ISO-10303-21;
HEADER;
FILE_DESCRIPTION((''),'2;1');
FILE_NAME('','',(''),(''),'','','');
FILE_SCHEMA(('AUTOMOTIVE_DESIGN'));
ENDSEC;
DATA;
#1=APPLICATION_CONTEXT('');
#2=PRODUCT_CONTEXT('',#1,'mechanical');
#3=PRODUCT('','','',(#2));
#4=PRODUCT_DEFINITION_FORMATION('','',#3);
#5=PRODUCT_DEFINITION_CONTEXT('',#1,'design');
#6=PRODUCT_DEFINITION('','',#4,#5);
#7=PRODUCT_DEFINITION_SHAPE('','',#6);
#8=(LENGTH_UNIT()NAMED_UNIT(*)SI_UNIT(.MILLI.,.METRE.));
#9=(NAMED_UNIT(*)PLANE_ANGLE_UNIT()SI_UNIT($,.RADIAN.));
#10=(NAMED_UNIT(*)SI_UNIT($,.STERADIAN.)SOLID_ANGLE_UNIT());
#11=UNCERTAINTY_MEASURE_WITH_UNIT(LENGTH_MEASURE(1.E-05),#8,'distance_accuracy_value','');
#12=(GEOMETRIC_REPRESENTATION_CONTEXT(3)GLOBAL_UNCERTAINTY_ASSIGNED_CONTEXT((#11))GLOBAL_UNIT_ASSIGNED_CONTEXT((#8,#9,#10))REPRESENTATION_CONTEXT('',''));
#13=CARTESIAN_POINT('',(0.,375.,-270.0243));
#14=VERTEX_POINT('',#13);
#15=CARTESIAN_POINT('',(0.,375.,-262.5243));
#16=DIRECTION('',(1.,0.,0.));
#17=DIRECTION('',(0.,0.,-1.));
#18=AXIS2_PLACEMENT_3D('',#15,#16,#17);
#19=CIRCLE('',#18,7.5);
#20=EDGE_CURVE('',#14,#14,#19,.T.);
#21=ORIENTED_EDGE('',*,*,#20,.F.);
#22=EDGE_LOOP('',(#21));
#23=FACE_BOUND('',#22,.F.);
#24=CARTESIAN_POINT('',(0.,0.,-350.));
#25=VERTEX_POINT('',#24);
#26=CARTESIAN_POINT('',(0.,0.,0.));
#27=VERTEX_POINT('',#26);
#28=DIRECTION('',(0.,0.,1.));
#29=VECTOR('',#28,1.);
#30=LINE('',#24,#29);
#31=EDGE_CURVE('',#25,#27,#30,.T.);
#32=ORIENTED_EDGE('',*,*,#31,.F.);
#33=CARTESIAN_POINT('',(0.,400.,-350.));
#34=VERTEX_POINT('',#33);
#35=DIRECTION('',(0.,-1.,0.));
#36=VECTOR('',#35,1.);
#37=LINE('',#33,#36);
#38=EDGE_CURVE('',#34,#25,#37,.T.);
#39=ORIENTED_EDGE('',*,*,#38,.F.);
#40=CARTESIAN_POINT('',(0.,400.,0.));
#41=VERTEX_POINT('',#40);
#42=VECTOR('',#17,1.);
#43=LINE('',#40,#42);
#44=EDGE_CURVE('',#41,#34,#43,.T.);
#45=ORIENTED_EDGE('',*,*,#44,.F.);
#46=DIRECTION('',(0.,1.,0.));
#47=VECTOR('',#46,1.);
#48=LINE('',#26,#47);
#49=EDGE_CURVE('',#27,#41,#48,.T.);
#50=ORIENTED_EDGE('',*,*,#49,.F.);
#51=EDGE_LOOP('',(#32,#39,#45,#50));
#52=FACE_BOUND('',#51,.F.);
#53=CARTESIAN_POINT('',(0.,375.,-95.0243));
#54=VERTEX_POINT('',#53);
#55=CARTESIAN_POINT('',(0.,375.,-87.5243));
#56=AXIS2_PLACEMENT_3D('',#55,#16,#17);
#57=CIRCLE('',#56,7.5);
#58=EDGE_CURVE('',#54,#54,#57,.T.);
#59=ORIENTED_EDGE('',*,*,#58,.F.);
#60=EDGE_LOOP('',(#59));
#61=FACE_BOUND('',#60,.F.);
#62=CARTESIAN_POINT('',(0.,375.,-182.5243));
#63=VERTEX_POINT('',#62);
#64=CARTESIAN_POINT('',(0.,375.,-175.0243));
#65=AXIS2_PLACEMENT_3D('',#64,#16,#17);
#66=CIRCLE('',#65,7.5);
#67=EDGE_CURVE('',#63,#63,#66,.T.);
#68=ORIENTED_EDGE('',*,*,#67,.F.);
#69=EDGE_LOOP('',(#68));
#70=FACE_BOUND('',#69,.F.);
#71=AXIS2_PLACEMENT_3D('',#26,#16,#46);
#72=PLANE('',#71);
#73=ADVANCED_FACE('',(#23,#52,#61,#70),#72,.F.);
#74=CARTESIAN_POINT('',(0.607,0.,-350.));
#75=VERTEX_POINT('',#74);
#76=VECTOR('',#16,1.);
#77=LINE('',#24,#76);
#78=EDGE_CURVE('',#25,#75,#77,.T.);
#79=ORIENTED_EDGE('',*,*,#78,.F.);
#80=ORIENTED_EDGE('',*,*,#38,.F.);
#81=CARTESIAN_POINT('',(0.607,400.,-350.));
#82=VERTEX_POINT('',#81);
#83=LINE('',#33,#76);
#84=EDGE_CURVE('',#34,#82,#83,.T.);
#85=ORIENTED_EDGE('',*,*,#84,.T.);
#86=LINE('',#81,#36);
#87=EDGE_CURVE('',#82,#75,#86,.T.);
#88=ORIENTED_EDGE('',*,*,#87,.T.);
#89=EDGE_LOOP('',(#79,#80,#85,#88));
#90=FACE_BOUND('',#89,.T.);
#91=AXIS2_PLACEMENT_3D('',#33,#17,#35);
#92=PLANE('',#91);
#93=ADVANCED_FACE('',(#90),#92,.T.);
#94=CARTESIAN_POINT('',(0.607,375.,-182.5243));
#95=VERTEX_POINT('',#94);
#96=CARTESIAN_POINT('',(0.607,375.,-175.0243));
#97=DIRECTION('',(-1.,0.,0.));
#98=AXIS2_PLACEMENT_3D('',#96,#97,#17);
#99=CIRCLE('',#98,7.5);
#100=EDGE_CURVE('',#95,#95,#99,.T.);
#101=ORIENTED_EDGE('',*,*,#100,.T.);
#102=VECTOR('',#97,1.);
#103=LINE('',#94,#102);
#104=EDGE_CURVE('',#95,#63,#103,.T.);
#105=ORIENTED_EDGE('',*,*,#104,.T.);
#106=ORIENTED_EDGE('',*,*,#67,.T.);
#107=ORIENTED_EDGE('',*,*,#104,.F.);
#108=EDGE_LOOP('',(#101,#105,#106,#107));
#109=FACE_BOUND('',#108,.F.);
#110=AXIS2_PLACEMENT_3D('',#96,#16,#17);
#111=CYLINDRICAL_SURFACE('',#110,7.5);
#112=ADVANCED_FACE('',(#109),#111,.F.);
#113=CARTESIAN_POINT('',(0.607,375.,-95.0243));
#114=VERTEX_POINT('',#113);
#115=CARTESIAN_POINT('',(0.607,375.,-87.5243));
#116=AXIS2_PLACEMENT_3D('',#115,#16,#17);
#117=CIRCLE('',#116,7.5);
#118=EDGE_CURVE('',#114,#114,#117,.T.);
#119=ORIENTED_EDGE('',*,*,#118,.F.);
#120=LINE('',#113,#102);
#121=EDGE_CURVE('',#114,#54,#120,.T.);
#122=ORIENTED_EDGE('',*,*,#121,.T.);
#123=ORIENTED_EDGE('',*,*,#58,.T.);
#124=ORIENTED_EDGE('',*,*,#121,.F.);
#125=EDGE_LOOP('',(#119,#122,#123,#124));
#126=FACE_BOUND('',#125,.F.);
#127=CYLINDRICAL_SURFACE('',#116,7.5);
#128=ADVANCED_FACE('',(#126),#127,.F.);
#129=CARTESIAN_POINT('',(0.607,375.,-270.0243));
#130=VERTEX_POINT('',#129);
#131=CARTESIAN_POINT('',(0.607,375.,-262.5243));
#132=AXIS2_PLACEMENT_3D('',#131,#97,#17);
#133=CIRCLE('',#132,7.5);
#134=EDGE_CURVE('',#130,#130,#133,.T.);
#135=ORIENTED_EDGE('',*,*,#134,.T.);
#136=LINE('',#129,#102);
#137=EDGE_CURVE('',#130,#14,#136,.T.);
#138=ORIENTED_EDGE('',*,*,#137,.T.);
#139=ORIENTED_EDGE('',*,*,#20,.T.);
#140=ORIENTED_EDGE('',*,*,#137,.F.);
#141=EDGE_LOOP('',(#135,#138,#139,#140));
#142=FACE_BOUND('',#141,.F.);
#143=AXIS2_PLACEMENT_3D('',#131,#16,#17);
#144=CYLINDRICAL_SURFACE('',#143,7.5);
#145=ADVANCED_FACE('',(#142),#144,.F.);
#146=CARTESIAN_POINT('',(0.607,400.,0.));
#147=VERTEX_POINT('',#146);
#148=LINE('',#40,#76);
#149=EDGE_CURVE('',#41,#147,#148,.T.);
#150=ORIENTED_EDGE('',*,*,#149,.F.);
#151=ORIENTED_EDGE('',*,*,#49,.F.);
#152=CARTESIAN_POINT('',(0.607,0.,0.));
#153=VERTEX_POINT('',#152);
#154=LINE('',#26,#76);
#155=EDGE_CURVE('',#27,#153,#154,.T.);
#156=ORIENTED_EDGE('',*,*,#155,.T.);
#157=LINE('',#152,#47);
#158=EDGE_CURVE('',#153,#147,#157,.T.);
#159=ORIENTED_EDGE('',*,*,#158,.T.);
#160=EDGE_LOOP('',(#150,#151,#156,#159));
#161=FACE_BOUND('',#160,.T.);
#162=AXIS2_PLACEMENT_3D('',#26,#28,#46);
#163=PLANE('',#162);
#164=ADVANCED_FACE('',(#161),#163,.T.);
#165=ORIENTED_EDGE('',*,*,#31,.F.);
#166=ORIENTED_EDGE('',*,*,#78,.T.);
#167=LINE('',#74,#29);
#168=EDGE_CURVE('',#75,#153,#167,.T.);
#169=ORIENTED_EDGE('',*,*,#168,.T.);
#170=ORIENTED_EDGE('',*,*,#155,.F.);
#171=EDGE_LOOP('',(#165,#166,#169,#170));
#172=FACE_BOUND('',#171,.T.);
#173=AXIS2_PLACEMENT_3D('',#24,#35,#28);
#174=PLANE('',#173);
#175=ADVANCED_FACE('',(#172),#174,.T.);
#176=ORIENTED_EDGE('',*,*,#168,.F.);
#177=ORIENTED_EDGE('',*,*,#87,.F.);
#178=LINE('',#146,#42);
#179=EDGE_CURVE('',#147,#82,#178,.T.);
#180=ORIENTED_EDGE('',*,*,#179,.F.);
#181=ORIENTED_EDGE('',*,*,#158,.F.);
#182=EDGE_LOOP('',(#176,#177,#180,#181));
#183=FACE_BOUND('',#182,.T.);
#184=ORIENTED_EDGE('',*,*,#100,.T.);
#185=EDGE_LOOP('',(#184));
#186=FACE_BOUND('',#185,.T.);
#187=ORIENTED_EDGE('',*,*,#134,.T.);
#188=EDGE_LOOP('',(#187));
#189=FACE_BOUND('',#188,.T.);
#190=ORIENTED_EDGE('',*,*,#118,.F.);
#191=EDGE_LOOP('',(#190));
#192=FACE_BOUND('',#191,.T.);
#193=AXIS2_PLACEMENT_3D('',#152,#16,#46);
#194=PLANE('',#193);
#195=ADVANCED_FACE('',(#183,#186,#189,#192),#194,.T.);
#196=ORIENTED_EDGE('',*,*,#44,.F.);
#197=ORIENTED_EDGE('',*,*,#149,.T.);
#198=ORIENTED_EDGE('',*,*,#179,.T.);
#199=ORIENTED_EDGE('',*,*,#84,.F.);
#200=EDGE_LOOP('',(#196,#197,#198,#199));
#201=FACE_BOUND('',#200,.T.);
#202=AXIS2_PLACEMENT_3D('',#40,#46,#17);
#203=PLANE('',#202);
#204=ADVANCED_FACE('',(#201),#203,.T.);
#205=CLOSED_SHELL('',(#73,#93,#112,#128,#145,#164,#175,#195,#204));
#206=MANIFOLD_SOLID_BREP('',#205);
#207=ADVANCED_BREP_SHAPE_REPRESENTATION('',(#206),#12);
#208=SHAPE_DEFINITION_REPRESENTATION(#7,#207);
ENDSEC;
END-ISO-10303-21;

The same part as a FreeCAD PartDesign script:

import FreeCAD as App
import Part
import Sketcher
Q = App.Units.Quantity


def add_polygon(sketch, points):
    """Adds a closed chain of lines whose ends are joined by coincident constraints."""
    first, n = sketch.GeometryCount, len(points)
    for a, b in zip(points, points[1:] + points[:1]):
        sketch.addGeometry(Part.LineSegment(App.Vector(*a, 0), App.Vector(*b, 0)), False)
    for i in range(n):
        sketch.addConstraint(Sketcher.Constraint("Coincident", first + i, 2, first + (i + 1) % n, 1))

doc = App.newDocument("Part")
body = doc.addObject("PartDesign::Body", "Body")

# Sketch on YZ plane
sketch1 = body.newObject("Sketcher::SketchObject", "Sketch")
sketch1.AttachmentSupport = (doc.getObject("YZ_Plane"), [""])
sketch1.MapMode = "FlatFace"
add_polygon(sketch1, [(400, 0), (0, 0), (0, -350), (400, -350)])  # lines 0-3
sketch1.addConstraint([
    Sketcher.Constraint("Horizontal", 0),
    Sketcher.Constraint("Vertical", 1),
    Sketcher.Constraint("Horizontal", 2),
    Sketcher.Constraint("Vertical", 3),
    Sketcher.Constraint("Coincident", 0, 2, -1, 1),
    Sketcher.Constraint("DistanceX", 0, 2, 0, 1, Q("400 mm")),
    Sketcher.Constraint("DistanceY", 1, 2, 1, 1, Q("350 mm")),
])
pad1 = body.newObject("PartDesign::Pad", "Pad")
pad1.Profile = sketch1
pad1.Length = 0.607

# Sketch on YZ plane
sketch2 = body.newObject("Sketcher::SketchObject", "Sketch001")
sketch2.AttachmentSupport = (doc.getObject("YZ_Plane"), [""])
sketch2.MapMode = "FlatFace"
sketch2.AttachmentOffset = App.Placement(App.Vector(0, 0, 0.607), App.Rotation())
sketch2.addGeometry([
    Part.Circle(App.Vector(375, -175, 0), App.Vector(0, 0, 1), 8),
    Part.Circle(App.Vector(375, -263, 0), App.Vector(0, 0, 1), 8),
    Part.Circle(App.Vector(375, -88, 0), App.Vector(0, 0, 1), 8),
], False)
sketch2.addConstraint([
    Sketcher.Constraint("Equal", 0, 1),
    Sketcher.Constraint("Equal", 1, 2),
    Sketcher.Constraint("Vertical", 0, 3, 1, 3),
    Sketcher.Constraint("Vertical", 1, 3, 2, 3),
    Sketcher.Constraint("Diameter", 0, Q("15 mm")),
    Sketcher.Constraint("DistanceY", 1, 3, 2, 3, Q("175 mm")),
    Sketcher.Constraint("DistanceX", -1, 1, 0, 3, Q("375 mm")),
    Sketcher.Constraint("DistanceY", 1, 3, 0, 3, Q("87.5 mm")),
    Sketcher.Constraint("DistanceY", 0, 3, -1, 1, Q("175.0243 mm")),
])
pocket1 = body.newObject("PartDesign::Pocket", "Pocket")
pocket1.Profile = sketch2
pocket1.Type = "ThroughAll"

doc.recompute()
